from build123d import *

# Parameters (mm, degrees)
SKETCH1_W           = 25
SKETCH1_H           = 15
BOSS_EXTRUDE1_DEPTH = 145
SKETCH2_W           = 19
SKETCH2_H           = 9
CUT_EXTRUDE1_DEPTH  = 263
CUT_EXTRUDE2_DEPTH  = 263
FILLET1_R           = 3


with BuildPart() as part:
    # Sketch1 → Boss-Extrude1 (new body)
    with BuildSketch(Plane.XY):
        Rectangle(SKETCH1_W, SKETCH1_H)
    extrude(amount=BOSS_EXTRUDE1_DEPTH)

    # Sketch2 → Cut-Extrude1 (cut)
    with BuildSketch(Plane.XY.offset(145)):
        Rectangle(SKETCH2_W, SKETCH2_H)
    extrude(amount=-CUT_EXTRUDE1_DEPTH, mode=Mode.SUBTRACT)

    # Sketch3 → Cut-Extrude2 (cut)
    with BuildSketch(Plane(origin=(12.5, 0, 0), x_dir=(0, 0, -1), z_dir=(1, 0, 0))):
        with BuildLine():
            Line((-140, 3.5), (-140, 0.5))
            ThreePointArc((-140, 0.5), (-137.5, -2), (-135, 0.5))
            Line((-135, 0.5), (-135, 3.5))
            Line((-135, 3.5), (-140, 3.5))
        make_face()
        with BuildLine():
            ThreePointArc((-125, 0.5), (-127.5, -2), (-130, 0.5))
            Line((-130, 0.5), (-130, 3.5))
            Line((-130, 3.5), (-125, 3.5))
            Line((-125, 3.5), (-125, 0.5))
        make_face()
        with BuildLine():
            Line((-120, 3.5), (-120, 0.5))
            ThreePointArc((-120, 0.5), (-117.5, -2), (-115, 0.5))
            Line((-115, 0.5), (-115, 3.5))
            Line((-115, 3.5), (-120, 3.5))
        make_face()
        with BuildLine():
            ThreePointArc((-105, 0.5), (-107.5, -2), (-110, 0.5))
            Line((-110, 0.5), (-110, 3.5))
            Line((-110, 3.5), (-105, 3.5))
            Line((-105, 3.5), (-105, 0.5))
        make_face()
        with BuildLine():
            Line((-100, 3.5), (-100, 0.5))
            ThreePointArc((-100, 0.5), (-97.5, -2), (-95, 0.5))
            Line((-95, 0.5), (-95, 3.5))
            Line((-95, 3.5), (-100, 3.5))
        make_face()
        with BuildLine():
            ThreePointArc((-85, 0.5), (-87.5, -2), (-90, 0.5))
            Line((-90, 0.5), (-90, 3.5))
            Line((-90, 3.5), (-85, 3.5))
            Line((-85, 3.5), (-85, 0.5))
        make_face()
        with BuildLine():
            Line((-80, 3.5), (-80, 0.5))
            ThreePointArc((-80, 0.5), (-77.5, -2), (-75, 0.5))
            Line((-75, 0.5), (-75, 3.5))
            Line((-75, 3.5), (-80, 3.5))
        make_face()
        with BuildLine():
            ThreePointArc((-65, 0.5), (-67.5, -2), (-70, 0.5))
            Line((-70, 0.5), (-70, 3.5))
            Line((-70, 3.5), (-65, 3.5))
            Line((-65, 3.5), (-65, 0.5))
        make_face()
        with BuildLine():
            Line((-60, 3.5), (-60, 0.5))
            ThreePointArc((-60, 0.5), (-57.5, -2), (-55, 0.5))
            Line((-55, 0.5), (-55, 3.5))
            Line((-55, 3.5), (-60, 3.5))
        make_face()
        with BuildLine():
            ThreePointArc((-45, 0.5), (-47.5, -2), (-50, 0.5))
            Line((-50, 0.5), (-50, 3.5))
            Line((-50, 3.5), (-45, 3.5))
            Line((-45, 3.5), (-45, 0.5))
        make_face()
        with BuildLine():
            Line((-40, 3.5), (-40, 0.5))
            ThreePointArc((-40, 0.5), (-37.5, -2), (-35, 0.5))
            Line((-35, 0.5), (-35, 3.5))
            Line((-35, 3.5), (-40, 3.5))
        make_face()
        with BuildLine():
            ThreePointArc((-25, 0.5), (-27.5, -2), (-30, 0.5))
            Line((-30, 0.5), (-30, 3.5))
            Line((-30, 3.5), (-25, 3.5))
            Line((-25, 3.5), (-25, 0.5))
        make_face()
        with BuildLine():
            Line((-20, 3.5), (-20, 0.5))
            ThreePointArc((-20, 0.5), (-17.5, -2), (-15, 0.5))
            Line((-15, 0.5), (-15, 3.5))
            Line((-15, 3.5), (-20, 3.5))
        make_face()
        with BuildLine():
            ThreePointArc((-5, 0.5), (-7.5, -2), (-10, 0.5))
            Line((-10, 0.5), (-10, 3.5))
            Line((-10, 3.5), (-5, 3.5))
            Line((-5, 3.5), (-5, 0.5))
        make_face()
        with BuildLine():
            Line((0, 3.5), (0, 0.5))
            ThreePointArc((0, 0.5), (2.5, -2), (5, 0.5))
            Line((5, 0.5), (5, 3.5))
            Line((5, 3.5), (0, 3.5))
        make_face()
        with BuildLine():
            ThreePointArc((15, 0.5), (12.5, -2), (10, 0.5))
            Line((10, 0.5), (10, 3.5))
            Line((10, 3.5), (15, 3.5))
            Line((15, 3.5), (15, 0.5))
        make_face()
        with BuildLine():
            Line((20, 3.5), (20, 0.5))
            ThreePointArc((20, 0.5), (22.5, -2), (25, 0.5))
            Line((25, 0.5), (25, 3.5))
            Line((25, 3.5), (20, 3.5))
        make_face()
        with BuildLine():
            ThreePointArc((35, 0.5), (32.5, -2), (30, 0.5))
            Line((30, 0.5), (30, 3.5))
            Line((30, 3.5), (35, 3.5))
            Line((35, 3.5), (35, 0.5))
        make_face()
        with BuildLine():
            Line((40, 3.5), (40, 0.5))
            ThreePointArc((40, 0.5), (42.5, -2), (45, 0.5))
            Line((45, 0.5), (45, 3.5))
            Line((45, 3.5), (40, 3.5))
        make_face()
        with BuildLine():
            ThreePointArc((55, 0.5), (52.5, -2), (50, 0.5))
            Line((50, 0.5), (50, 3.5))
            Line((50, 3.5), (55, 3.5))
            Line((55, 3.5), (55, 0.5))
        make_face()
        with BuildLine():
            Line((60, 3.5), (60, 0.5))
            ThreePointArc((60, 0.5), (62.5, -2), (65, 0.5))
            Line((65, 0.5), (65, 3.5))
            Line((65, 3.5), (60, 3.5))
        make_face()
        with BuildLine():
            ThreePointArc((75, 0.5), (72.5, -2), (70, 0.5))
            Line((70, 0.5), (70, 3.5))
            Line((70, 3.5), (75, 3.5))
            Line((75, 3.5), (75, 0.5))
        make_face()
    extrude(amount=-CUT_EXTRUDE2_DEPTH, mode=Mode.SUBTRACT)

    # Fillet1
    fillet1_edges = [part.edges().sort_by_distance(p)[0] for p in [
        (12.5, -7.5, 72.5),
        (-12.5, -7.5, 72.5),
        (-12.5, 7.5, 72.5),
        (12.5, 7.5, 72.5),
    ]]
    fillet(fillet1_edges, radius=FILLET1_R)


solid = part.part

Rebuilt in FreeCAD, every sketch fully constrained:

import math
import FreeCAD as App
import Part
import Sketcher

V = App.Vector


def edges_at(feature, points):
    """Names of the edges that pass closest to the given points."""
    edges = feature.Shape.Edges
    near = lambda p: min(range(len(edges)), key=lambda i: edges[i].distToShape(Part.Vertex(*p))[0])
    return sorted({f"Edge{near(p) + 1}" for p in points})


def add_polygon(sketch, points):
    """Adds a closed chain of lines whose ends are joined by coincident constraints."""
    first, n = sketch.GeometryCount, len(points)
    for a, b in zip(points, points[1:] + points[:1]):
        sketch.addGeometry(Part.LineSegment(App.Vector(*a, 0), App.Vector(*b, 0)), False)
    for i in range(n):
        sketch.addConstraint(Sketcher.Constraint("Coincident", first + i, 2, first + (i + 1) % n, 1))

doc = App.newDocument("Part")
body = doc.addObject("PartDesign::Body", "Body")

sketch1 = body.newObject("Sketcher::SketchObject", "Sketch")
sketch1.AttachmentSupport = (doc.getObject("XY_Plane"), [""])
sketch1.MapMode = "FlatFace"
add_polygon(sketch1, [(-12.5, 7.5), (-12.5, -7.5), (12.5, -7.5), (12.5, 7.5)])
sketch1.addConstraint([
    Sketcher.Constraint("Vertical", 0),
    Sketcher.Constraint("Horizontal", 1),
    Sketcher.Constraint("Vertical", 2),
    Sketcher.Constraint("Horizontal", 3),
    Sketcher.Constraint("Symmetric", 0, 2, 2, 2, -1, 1),
    Sketcher.Constraint("DistanceX", 1, 1, 1, 2, 25.0),
    Sketcher.Constraint("DistanceY", 0, 2, 0, 1, 15.0),
])
pad1 = body.newObject("PartDesign::Pad", "Pad")
pad1.Profile = sketch1
pad1.Length = 145

sketch2 = body.newObject("Sketcher::SketchObject", "Sketch001")
sketch2.AttachmentSupport = (doc.getObject("XY_Plane"), [""])
sketch2.MapMode = "FlatFace"
sketch2.AttachmentOffset = App.Placement(V(0, 0, 145), App.Rotation())
add_polygon(sketch2, [(-9.5, 4.5), (-9.5, -4.5), (9.5, -4.5), (9.5, 4.5)])
sketch2.addConstraint([
    Sketcher.Constraint("Vertical", 0),
    Sketcher.Constraint("Horizontal", 1),
    Sketcher.Constraint("Vertical", 2),
    Sketcher.Constraint("Horizontal", 3),
    Sketcher.Constraint("Symmetric", 0, 2, 2, 2, -1, 1),
    Sketcher.Constraint("DistanceX", 1, 1, 1, 2, 19.0),
    Sketcher.Constraint("DistanceY", 0, 2, 0, 1, 9.0),
])
pocket1 = body.newObject("PartDesign::Pocket", "Pocket")
pocket1.Profile = sketch2
pocket1.Length = 263

sketch3 = body.newObject("Sketcher::SketchObject", "Sketch002")
sketch3.AttachmentSupport = (doc.getObject("YZ_Plane"), [""])
sketch3.MapMode = "FlatFace"
sketch3.AttachmentOffset = App.Placement(V(0, 0, 12.5), App.Rotation())
sketch3.addGeometry([
    Part.LineSegment(V(3.5, 140, 0), V(0.5, 140, 0)),
    Part.ArcOfCircle(Part.Circle(V(0.5, 137.5, 0), V(0, 0, 1), 2.5), math.radians(90), math.radians(270)),
    Part.LineSegment(V(0.5, 135, 0), V(3.5, 135, 0)),
    Part.LineSegment(V(3.5, 135, 0), V(3.5, 140, 0)),
    Part.ArcOfCircle(Part.Circle(V(0.5, 127.5, 0), V(0, 0, 1), 2.5), math.radians(90), math.radians(270)),
    Part.LineSegment(V(0.5, 125, 0), V(3.5, 125, 0)),
    Part.LineSegment(V(3.5, 125, 0), V(3.5, 130, 0)),
    Part.LineSegment(V(3.5, 130, 0), V(0.5, 130, 0)),
    Part.LineSegment(V(3.5, 120, 0), V(0.5, 120, 0)),
    Part.ArcOfCircle(Part.Circle(V(0.5, 117.5, 0), V(0, 0, 1), 2.5), math.radians(90), math.radians(270)),
    Part.LineSegment(V(0.5, 115, 0), V(3.5, 115, 0)),
    Part.LineSegment(V(3.5, 115, 0), V(3.5, 120, 0)),
    Part.ArcOfCircle(Part.Circle(V(0.5, 107.5, 0), V(0, 0, 1), 2.5), math.radians(90), math.radians(270)),
    Part.LineSegment(V(0.5, 105, 0), V(3.5, 105, 0)),
    Part.LineSegment(V(3.5, 105, 0), V(3.5, 110, 0)),
    Part.LineSegment(V(3.5, 110, 0), V(0.5, 110, 0)),
    Part.LineSegment(V(3.5, 100, 0), V(0.5, 100, 0)),
    Part.ArcOfCircle(Part.Circle(V(0.5, 97.5, 0), V(0, 0, 1), 2.5), math.radians(90), math.radians(270)),
    Part.LineSegment(V(0.5, 95, 0), V(3.5, 95, 0)),
    Part.LineSegment(V(3.5, 95, 0), V(3.5, 100, 0)),
    Part.ArcOfCircle(Part.Circle(V(0.5, 87.5, 0), V(0, 0, 1), 2.5), math.radians(90), math.radians(270)),
    Part.LineSegment(V(0.5, 85, 0), V(3.5, 85, 0)),
    Part.LineSegment(V(3.5, 85, 0), V(3.5, 90, 0)),
    Part.LineSegment(V(3.5, 90, 0), V(0.5, 90, 0)),
    Part.LineSegment(V(3.5, 80, 0), V(0.5, 80, 0)),
    Part.ArcOfCircle(Part.Circle(V(0.5, 77.5, 0), V(0, 0, 1), 2.5), math.radians(90), math.radians(270)),
    Part.LineSegment(V(0.5, 75, 0), V(3.5, 75, 0)),
    Part.LineSegment(V(3.5, 75, 0), V(3.5, 80, 0)),
    Part.ArcOfCircle(Part.Circle(V(0.5, 67.5, 0), V(0, 0, 1), 2.5), math.radians(90), math.radians(270)),
    Part.LineSegment(V(0.5, 65, 0), V(3.5, 65, 0)),
    Part.LineSegment(V(3.5, 65, 0), V(3.5, 70, 0)),
    Part.LineSegment(V(3.5, 70, 0), V(0.5, 70, 0)),
    Part.LineSegment(V(3.5, 60, 0), V(0.5, 60, 0)),
    Part.ArcOfCircle(Part.Circle(V(0.5, 57.5, 0), V(0, 0, 1), 2.5), math.radians(90), math.radians(270)),
    Part.LineSegment(V(0.5, 55, 0), V(3.5, 55, 0)),
    Part.LineSegment(V(3.5, 55, 0), V(3.5, 60, 0)),
    Part.ArcOfCircle(Part.Circle(V(0.5, 47.5, 0), V(0, 0, 1), 2.5), math.radians(90), math.radians(270)),
    Part.LineSegment(V(0.5, 45, 0), V(3.5, 45, 0)),
    Part.LineSegment(V(3.5, 45, 0), V(3.5, 50, 0)),
    Part.LineSegment(V(3.5, 50, 0), V(0.5, 50, 0)),
    Part.LineSegment(V(3.5, 40, 0), V(0.5, 40, 0)),
    Part.ArcOfCircle(Part.Circle(V(0.5, 37.5, 0), V(0, 0, 1), 2.5), math.radians(90), math.radians(270)),
    Part.LineSegment(V(0.5, 35, 0), V(3.5, 35, 0)),
    Part.LineSegment(V(3.5, 35, 0), V(3.5, 40, 0)),
    Part.ArcOfCircle(Part.Circle(V(0.5, 27.5, 0), V(0, 0, 1), 2.5), math.radians(90), math.radians(270)),
    Part.LineSegment(V(0.5, 25, 0), V(3.5, 25, 0)),
    Part.LineSegment(V(3.5, 25, 0), V(3.5, 30, 0)),
    Part.LineSegment(V(3.5, 30, 0), V(0.5, 30, 0)),
    Part.LineSegment(V(3.5, 20, 0), V(0.5, 20, 0)),
    Part.ArcOfCircle(Part.Circle(V(0.5, 17.5, 0), V(0, 0, 1), 2.5), math.radians(90), math.radians(270)),
    Part.LineSegment(V(0.5, 15, 0), V(3.5, 15, 0)),
    Part.LineSegment(V(3.5, 15, 0), V(3.5, 20, 0)),
    Part.ArcOfCircle(Part.Circle(V(0.5, 7.5, 0), V(0, 0, 1), 2.5), math.radians(90), math.radians(270)),
    Part.LineSegment(V(0.5, 5, 0), V(3.5, 5, 0)),
    Part.LineSegment(V(3.5, 5, 0), V(3.5, 10, 0)),
    Part.LineSegment(V(3.5, 10, 0), V(0.5, 10, 0)),
    Part.LineSegment(V(3.5, 0, 0), V(0.5, 0, 0)),
    Part.ArcOfCircle(Part.Circle(V(0.5, -2.5, 0), V(0, 0, 1), 2.5), math.radians(90), math.radians(270)),
    Part.LineSegment(V(0.5, -5, 0), V(3.5, -5, 0)),
    Part.LineSegment(V(3.5, -5, 0), V(3.5, 0, 0)),
    Part.ArcOfCircle(Part.Circle(V(0.5, -12.5, 0), V(0, 0, 1), 2.5), math.radians(90), math.radians(270)),
    Part.LineSegment(V(0.5, -15, 0), V(3.5, -15, 0)),
    Part.LineSegment(V(3.5, -15, 0), V(3.5, -10, 0)),
    Part.LineSegment(V(3.5, -10, 0), V(0.5, -10, 0)),
    Part.LineSegment(V(3.5, -20, 0), V(0.5, -20, 0)),
    Part.ArcOfCircle(Part.Circle(V(0.5, -22.5, 0), V(0, 0, 1), 2.5), math.radians(90), math.radians(270)),
    Part.LineSegment(V(0.5, -25, 0), V(3.5, -25, 0)),
    Part.LineSegment(V(3.5, -25, 0), V(3.5, -20, 0)),
    Part.ArcOfCircle(Part.Circle(V(0.5, -32.5, 0), V(0, 0, 1), 2.5), math.radians(90), math.radians(270)),
    Part.LineSegment(V(0.5, -35, 0), V(3.5, -35, 0)),
    Part.LineSegment(V(3.5, -35, 0), V(3.5, -30, 0)),
    Part.LineSegment(V(3.5, -30, 0), V(0.5, -30, 0)),
    Part.LineSegment(V(3.5, -40, 0), V(0.5, -40, 0)),
    Part.ArcOfCircle(Part.Circle(V(0.5, -42.5, 0), V(0, 0, 1), 2.5), math.radians(90), math.radians(270)),
    Part.LineSegment(V(0.5, -45, 0), V(3.5, -45, 0)),
    Part.LineSegment(V(3.5, -45, 0), V(3.5, -40, 0)),
    Part.ArcOfCircle(Part.Circle(V(0.5, -52.5, 0), V(0, 0, 1), 2.5), math.radians(90), math.radians(270)),
    Part.LineSegment(V(0.5, -55, 0), V(3.5, -55, 0)),
    Part.LineSegment(V(3.5, -55, 0), V(3.5, -50, 0)),
    Part.LineSegment(V(3.5, -50, 0), V(0.5, -50, 0)),
    Part.LineSegment(V(3.5, -60, 0), V(0.5, -60, 0)),
    Part.ArcOfCircle(Part.Circle(V(0.5, -62.5, 0), V(0, 0, 1), 2.5), math.radians(90), math.radians(270)),
    Part.LineSegment(V(0.5, -65, 0), V(3.5, -65, 0)),
    Part.LineSegment(V(3.5, -65, 0), V(3.5, -60, 0)),
    Part.ArcOfCircle(Part.Circle(V(0.5, -72.5, 0), V(0, 0, 1), 2.5), math.radians(90), math.radians(270)),
    Part.LineSegment(V(0.5, -75, 0), V(3.5, -75, 0)),
    Part.LineSegment(V(3.5, -75, 0), V(3.5, -70, 0)),
    Part.LineSegment(V(3.5, -70, 0), V(0.5, -70, 0)),
], False)
sketch3.addConstraint([
    Sketcher.Constraint("Tangent", 0, 2, 1, 1),
    Sketcher.Constraint("Tangent", 1, 2, 2, 1),
    Sketcher.Constraint("Coincident", 2, 2, 3, 1),
    Sketcher.Constraint("Coincident", 3, 2, 0, 1),
    Sketcher.Constraint("Tangent", 4, 2, 5, 1),
    Sketcher.Constraint("Coincident", 5, 2, 6, 1),
    Sketcher.Constraint("Coincident", 6, 2, 7, 1),
    Sketcher.Constraint("Tangent", 7, 2, 4, 1),
    Sketcher.Constraint("Tangent", 8, 2, 9, 1),
    Sketcher.Constraint("Tangent", 9, 2, 10, 1),
    Sketcher.Constraint("Coincident", 10, 2, 11, 1),
    Sketcher.Constraint("Coincident", 11, 2, 8, 1),
    Sketcher.Constraint("Tangent", 12, 2, 13, 1),
    Sketcher.Constraint("Coincident", 13, 2, 14, 1),
    Sketcher.Constraint("Coincident", 14, 2, 15, 1),
    Sketcher.Constraint("Tangent", 15, 2, 12, 1),
    Sketcher.Constraint("Tangent", 16, 2, 17, 1),
    Sketcher.Constraint("Tangent", 17, 2, 18, 1),
    Sketcher.Constraint("Coincident", 18, 2, 19, 1),
    Sketcher.Constraint("Coincident", 19, 2, 16, 1),
    Sketcher.Constraint("Tangent", 20, 2, 21, 1),
    Sketcher.Constraint("Coincident", 21, 2, 22, 1),
    Sketcher.Constraint("Coincident", 22, 2, 23, 1),
    Sketcher.Constraint("Tangent", 23, 2, 20, 1),
    Sketcher.Constraint("Tangent", 24, 2, 25, 1),
    Sketcher.Constraint("Tangent", 25, 2, 26, 1),
    Sketcher.Constraint("Coincident", 26, 2, 27, 1),
    Sketcher.Constraint("Coincident", 27, 2, 24, 1),
    Sketcher.Constraint("Tangent", 28, 2, 29, 1),
    Sketcher.Constraint("Coincident", 29, 2, 30, 1),
    Sketcher.Constraint("Coincident", 30, 2, 31, 1),
    Sketcher.Constraint("Tangent", 31, 2, 28, 1),
    Sketcher.Constraint("Tangent", 32, 2, 33, 1),
    Sketcher.Constraint("Tangent", 33, 2, 34, 1),
    Sketcher.Constraint("Coincident", 34, 2, 35, 1),
    Sketcher.Constraint("Coincident", 35, 2, 32, 1),
    Sketcher.Constraint("Tangent", 36, 2, 37, 1),
    Sketcher.Constraint("Coincident", 37, 2, 38, 1),
    Sketcher.Constraint("Coincident", 38, 2, 39, 1),
    Sketcher.Constraint("Tangent", 39, 2, 36, 1),
    Sketcher.Constraint("Tangent", 40, 2, 41, 1),
    Sketcher.Constraint("Tangent", 41, 2, 42, 1),
    Sketcher.Constraint("Coincident", 42, 2, 43, 1),
    Sketcher.Constraint("Coincident", 43, 2, 40, 1),
    Sketcher.Constraint("Tangent", 44, 2, 45, 1),
    Sketcher.Constraint("Coincident", 45, 2, 46, 1),
    Sketcher.Constraint("Coincident", 46, 2, 47, 1),
    Sketcher.Constraint("Tangent", 47, 2, 44, 1),
    Sketcher.Constraint("Tangent", 48, 2, 49, 1),
    Sketcher.Constraint("Tangent", 49, 2, 50, 1),
    Sketcher.Constraint("Coincident", 50, 2, 51, 1),
    Sketcher.Constraint("Coincident", 51, 2, 48, 1),
    Sketcher.Constraint("Tangent", 52, 2, 53, 1),
    Sketcher.Constraint("Coincident", 53, 2, 54, 1),
    Sketcher.Constraint("Coincident", 54, 2, 55, 1),
    Sketcher.Constraint("Tangent", 55, 2, 52, 1),
    Sketcher.Constraint("Tangent", 56, 2, 57, 1),
    Sketcher.Constraint("Tangent", 57, 2, 58, 1),
    Sketcher.Constraint("Coincident", 58, 2, 59, 1),
    Sketcher.Constraint("Coincident", 59, 2, 56, 1),
    Sketcher.Constraint("Tangent", 60, 2, 61, 1),
    Sketcher.Constraint("Coincident", 61, 2, 62, 1),
    Sketcher.Constraint("Coincident", 62, 2, 63, 1),
    Sketcher.Constraint("Tangent", 63, 2, 60, 1),
    Sketcher.Constraint("Tangent", 64, 2, 65, 1),
    Sketcher.Constraint("Tangent", 65, 2, 66, 1),
    Sketcher.Constraint("Coincident", 66, 2, 67, 1),
    Sketcher.Constraint("Coincident", 67, 2, 64, 1),
    Sketcher.Constraint("Tangent", 68, 2, 69, 1),
    Sketcher.Constraint("Coincident", 69, 2, 70, 1),
    Sketcher.Constraint("Coincident", 70, 2, 71, 1),
    Sketcher.Constraint("Tangent", 71, 2, 68, 1),
    Sketcher.Constraint("Tangent", 72, 2, 73, 1),
    Sketcher.Constraint("Tangent", 73, 2, 74, 1),
    Sketcher.Constraint("Coincident", 74, 2, 75, 1),
    Sketcher.Constraint("Coincident", 75, 2, 72, 1),
    Sketcher.Constraint("Tangent", 76, 2, 77, 1),
    Sketcher.Constraint("Coincident", 77, 2, 78, 1),
    Sketcher.Constraint("Coincident", 78, 2, 79, 1),
    Sketcher.Constraint("Tangent", 79, 2, 76, 1),
    Sketcher.Constraint("Tangent", 80, 2, 81, 1),
    Sketcher.Constraint("Tangent", 81, 2, 82, 1),
    Sketcher.Constraint("Coincident", 82, 2, 83, 1),
    Sketcher.Constraint("Coincident", 83, 2, 80, 1),
    Sketcher.Constraint("Tangent", 84, 2, 85, 1),
    Sketcher.Constraint("Coincident", 85, 2, 86, 1),
    Sketcher.Constraint("Coincident", 86, 2, 87, 1),
    Sketcher.Constraint("Tangent", 87, 2, 84, 1),
    Sketcher.Constraint("Horizontal", 0),
    Sketcher.Constraint("Horizontal", 2),
    Sketcher.Constraint("Vertical", 3),
    Sketcher.Constraint("Horizontal", 5),
    Sketcher.Constraint("Vertical", 6),
    Sketcher.Constraint("Horizontal", 7),
    Sketcher.Constraint("Horizontal", 8),
    Sketcher.Constraint("Horizontal", 10),
    Sketcher.Constraint("Vertical", 11),
    Sketcher.Constraint("Horizontal", 13),
    Sketcher.Constraint("Vertical", 14),
    Sketcher.Constraint("Horizontal", 15),
    Sketcher.Constraint("Horizontal", 16),
    Sketcher.Constraint("Horizontal", 18),
    Sketcher.Constraint("Vertical", 19),
    Sketcher.Constraint("Horizontal", 21),
    Sketcher.Constraint("Vertical", 22),
    Sketcher.Constraint("Horizontal", 23),
    Sketcher.Constraint("Horizontal", 24),
    Sketcher.Constraint("Horizontal", 26),
    Sketcher.Constraint("Vertical", 27),
    Sketcher.Constraint("Horizontal", 29),
    Sketcher.Constraint("Vertical", 30),
    Sketcher.Constraint("Horizontal", 31),
    Sketcher.Constraint("Horizontal", 32),
    Sketcher.Constraint("Horizontal", 34),
    Sketcher.Constraint("Vertical", 35),
    Sketcher.Constraint("Horizontal", 37),
    Sketcher.Constraint("Vertical", 38),
    Sketcher.Constraint("Horizontal", 39),
    Sketcher.Constraint("Horizontal", 40),
    Sketcher.Constraint("Horizontal", 42),
    Sketcher.Constraint("Vertical", 43),
    Sketcher.Constraint("Horizontal", 45),
    Sketcher.Constraint("Vertical", 46),
    Sketcher.Constraint("Horizontal", 47),
    Sketcher.Constraint("Horizontal", 48),
    Sketcher.Constraint("Horizontal", 50),
    Sketcher.Constraint("Vertical", 51),
    Sketcher.Constraint("Horizontal", 53),
    Sketcher.Constraint("Vertical", 54),
    Sketcher.Constraint("Horizontal", 55),
    Sketcher.Constraint("Horizontal", 56),
    Sketcher.Constraint("Horizontal", 58),
    Sketcher.Constraint("Vertical", 59),
    Sketcher.Constraint("Horizontal", 61),
    Sketcher.Constraint("Vertical", 62),
    Sketcher.Constraint("Horizontal", 63),
    Sketcher.Constraint("Horizontal", 64),
    Sketcher.Constraint("Horizontal", 66),
    Sketcher.Constraint("Vertical", 67),
    Sketcher.Constraint("Horizontal", 69),
    Sketcher.Constraint("Vertical", 70),
    Sketcher.Constraint("Horizontal", 71),
    Sketcher.Constraint("Horizontal", 72),
    Sketcher.Constraint("Horizontal", 74),
    Sketcher.Constraint("Vertical", 75),
    Sketcher.Constraint("Horizontal", 77),
    Sketcher.Constraint("Vertical", 78),
    Sketcher.Constraint("Horizontal", 79),
    Sketcher.Constraint("Horizontal", 80),
    Sketcher.Constraint("Horizontal", 82),
    Sketcher.Constraint("Vertical", 83),
    Sketcher.Constraint("Horizontal", 85),
    Sketcher.Constraint("Vertical", 86),
    Sketcher.Constraint("Horizontal", 87),
    Sketcher.Constraint("Equal", 1, 4),
    Sketcher.Constraint("Equal", 4, 9),
    Sketcher.Constraint("Equal", 9, 12),
    Sketcher.Constraint("Equal", 12, 17),
    Sketcher.Constraint("Equal", 17, 20),
    Sketcher.Constraint("Equal", 20, 25),
    Sketcher.Constraint("Equal", 25, 28),
    Sketcher.Constraint("Equal", 28, 33),
    Sketcher.Constraint("Equal", 33, 36),
    Sketcher.Constraint("Equal", 36, 41),
    Sketcher.Constraint("Equal", 41, 44),
    Sketcher.Constraint("Equal", 44, 49),
    Sketcher.Constraint("Equal", 49, 52),
    Sketcher.Constraint("Equal", 52, 57),
    Sketcher.Constraint("Equal", 57, 60),
    Sketcher.Constraint("Equal", 60, 65),
    Sketcher.Constraint("Equal", 65, 68),
    Sketcher.Constraint("Equal", 68, 73),
    Sketcher.Constraint("Equal", 73, 76),
    Sketcher.Constraint("Equal", 76, 81),
    Sketcher.Constraint("Equal", 81, 84),
    Sketcher.Constraint("Symmetric", 52, 2, 57, 2, -1),
    Sketcher.Constraint("Symmetric", 49, 2, 60, 2, -1),
    Sketcher.Constraint("Symmetric", 54, 2, 62, 2, -1),
    Sketcher.Constraint("Symmetric", 48, 2, 64, 2, -1),
    Sketcher.Constraint("Symmetric", 44, 2, 65, 2, -1),
    Sketcher.Constraint("Symmetric", 41, 2, 68, 2, -1),
    Sketcher.Constraint("Symmetric", 46, 2, 70, 2, -1),
    Sketcher.Constraint("Symmetric", 40, 2, 72, 2, -1),
    Sketcher.Constraint("Symmetric", 36, 2, 73, 2, -1),
    Sketcher.Constraint("Symmetric", 33, 2, 76, 2, -1),
    Sketcher.Constraint("Symmetric", 38, 2, 78, 2, -1),
    Sketcher.Constraint("Symmetric", 32, 2, 80, 2, -1),
    Sketcher.Constraint("Symmetric", 28, 2, 81, 2, -1),
    Sketcher.Constraint("Symmetric", 25, 2, 84, 2, -1),
    Sketcher.Constraint("Symmetric", 30, 2, 86, 2, -1),
    Sketcher.Constraint("PointOnObject", 56, 2, -1),
    Sketcher.Constraint("Vertical", 1, 3, 4, 3),
    Sketcher.Constraint("Vertical", 4, 3, 9, 3),
    Sketcher.Constraint("Vertical", 9, 3, 12, 3),
    Sketcher.Constraint("Vertical", 12, 3, 17, 3),
    Sketcher.Constraint("Vertical", 17, 3, 20, 3),
    Sketcher.Constraint("Vertical", 20, 3, 25, 3),
    Sketcher.Constraint("Vertical", 25, 3, 28, 3),
    Sketcher.Constraint("Vertical", 33, 3, 36, 3),
    Sketcher.Constraint("Vertical", 41, 3, 44, 3),
    Sketcher.Constraint("Vertical", 49, 3, 52, 3),
    Sketcher.Constraint("Vertical", 3, 2, 5, 2),
    Sketcher.Constraint("Vertical", 6, 2, 10, 2),
    Sketcher.Constraint("Vertical", 11, 2, 13, 2),
    Sketcher.Constraint("Vertical", 14, 2, 18, 2),
    Sketcher.Constraint("Vertical", 19, 2, 21, 2),
    Sketcher.Constraint("Vertical", 22, 2, 26, 2),
    Sketcher.Constraint("Vertical", 27, 2, 29, 2),
    Sketcher.Constraint("Vertical", 30, 2, 34, 2),
    Sketcher.Constraint("Vertical", 35, 2, 37, 2),
    Sketcher.Constraint("Vertical", 38, 2, 42, 2),
    Sketcher.Constraint("Vertical", 43, 2, 45, 2),
    Sketcher.Constraint("Vertical", 46, 2, 50, 2),
    Sketcher.Constraint("Vertical", 51, 2, 53, 2),
    Sketcher.Constraint("Vertical", 54, 2, 58, 2),
    Sketcher.Constraint("Vertical", 62, 2, 66, 2),
    Sketcher.Constraint("Vertical", 70, 2, 74, 2),
    Sketcher.Constraint("Vertical", 78, 2, 82, 2),
    Sketcher.Constraint("Radius", 1, 2.5),
    Sketcher.Constraint("DistanceX", 0, 2, 0, 1, 3.0),
    Sketcher.Constraint("DistanceY", -1, 1, 0, 2, 140.0),
    Sketcher.Constraint("DistanceY", -1, 1, 4, 2, 125.0),
    Sketcher.Constraint("DistanceY", -1, 1, 8, 2, 120.0),
    Sketcher.Constraint("DistanceY", -1, 1, 12, 2, 105.0),
    Sketcher.Constraint("DistanceY", -1, 1, 16, 2, 100.0),
    Sketcher.Constraint("DistanceY", -1, 1, 20, 2, 85.0),
    Sketcher.Constraint("DistanceX", -1, 1, 1, 3, 0.5),
])
pocket2 = body.newObject("PartDesign::Pocket", "Pocket001")
pocket2.Profile = sketch3
pocket2.Length = 263
doc.recompute()

fillet = body.newObject("PartDesign::Fillet", "Fillet")
fillet.Base = (pocket2, edges_at(pocket2, [
    (12.5, -7.5, 72.5),
    (-12.5, -7.5, 72.5),
    (-12.5, 7.5, 72.5),
    (12.5, 7.5, 72.5),
]))
fillet.Radius = 3

doc.recompute()
